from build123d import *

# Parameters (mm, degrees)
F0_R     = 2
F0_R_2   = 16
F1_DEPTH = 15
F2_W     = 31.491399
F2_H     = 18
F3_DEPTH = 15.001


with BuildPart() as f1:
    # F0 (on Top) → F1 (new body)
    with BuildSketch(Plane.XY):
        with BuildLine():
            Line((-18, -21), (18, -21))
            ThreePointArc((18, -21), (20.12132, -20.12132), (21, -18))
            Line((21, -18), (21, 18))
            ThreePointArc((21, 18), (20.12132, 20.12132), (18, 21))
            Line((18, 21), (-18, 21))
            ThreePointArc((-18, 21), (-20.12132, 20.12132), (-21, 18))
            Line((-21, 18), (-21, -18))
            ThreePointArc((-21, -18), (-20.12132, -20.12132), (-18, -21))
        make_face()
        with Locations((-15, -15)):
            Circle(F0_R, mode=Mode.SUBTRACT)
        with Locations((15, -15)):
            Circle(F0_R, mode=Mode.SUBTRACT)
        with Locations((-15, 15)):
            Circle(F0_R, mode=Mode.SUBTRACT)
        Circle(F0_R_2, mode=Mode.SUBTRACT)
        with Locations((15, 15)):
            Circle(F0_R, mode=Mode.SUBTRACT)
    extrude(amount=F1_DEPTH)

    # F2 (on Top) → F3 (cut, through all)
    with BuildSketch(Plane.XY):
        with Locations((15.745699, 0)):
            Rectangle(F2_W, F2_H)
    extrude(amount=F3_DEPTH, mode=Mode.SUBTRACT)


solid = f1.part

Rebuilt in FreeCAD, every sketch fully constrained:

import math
import FreeCAD as App
import Part
import Sketcher
from FreeCAD import Vector

doc = App.newDocument("Part")
params = doc.addObject("Spreadsheet::Sheet", "Params")
for row, (alias, value) in enumerate([
    ("sketch1_diameter", "4 mm"),
    ("sketch1_diameter2", "32 mm"),
    ("sketch1_radius", "3.000001 mm"),
    ("sketch1_width", "36 mm"),
    ("pad1_length", "15 mm"),
    ("sketch2_height", "18 mm"),
], start=1):
    params.set(f"A{row}", alias)
    params.set(f"B{row}", "=" + value)
    params.setAlias(f"B{row}", alias)

body = doc.addObject("PartDesign::Body", "Body")

sketch1 = body.newObject("Sketcher::SketchObject", "Sketch")
sketch1.AttachmentSupport = (doc.getObject("XY_Plane"), [""])
sketch1.MapMode = "FlatFace"
sketch1.addGeometry(Part.LineSegment(Vector(-18, -21, 0), Vector(18, -21, 0)), False)
sketch1.addGeometry(Part.ArcOfCircle(Part.Circle(Vector(17.999999, -17.999999, 0), Vector(0, 0, 1), 3.000001), math.radians(-89.999978), math.radians(-0.000022)), False)
sketch1.addGeometry(Part.LineSegment(Vector(21, -18, 0), Vector(21, 18, 0)), False)
sketch1.addGeometry(Part.ArcOfCircle(Part.Circle(Vector(17.999999, 17.999999, 0), Vector(0, 0, 1), 3.000001), math.radians(0.000022), math.radians(89.999978)), False)
sketch1.addGeometry(Part.LineSegment(Vector(18, 21, 0), Vector(-18, 21, 0)), False)
sketch1.addGeometry(Part.ArcOfCircle(Part.Circle(Vector(-17.999999, 17.999999, 0), Vector(0, 0, 1), 3.000001), math.radians(90.000022), math.radians(179.999978)), False)
sketch1.addGeometry(Part.LineSegment(Vector(-21, 18, 0), Vector(-21, -18, 0)), False)
sketch1.addGeometry(Part.ArcOfCircle(Part.Circle(Vector(-17.999999, -17.999999, 0), Vector(0, 0, 1), 3.000001), math.radians(-179.999978), math.radians(-90.000022)), False)
sketch1.addGeometry(Part.Circle(Vector(-15, -15, 0), Vector(0, 0, 1), 2), False)
sketch1.addGeometry(Part.Circle(Vector(15, -15, 0), Vector(0, 0, 1), 2), False)
sketch1.addGeometry(Part.Circle(Vector(-15, 15, 0), Vector(0, 0, 1), 2), False)
sketch1.addGeometry(Part.Circle(Vector(0, 0, 0), Vector(0, 0, 1), 16), False)
sketch1.addGeometry(Part.Circle(Vector(15, 15, 0), Vector(0, 0, 1), 2), False)
sketch1.addConstraint(Sketcher.Constraint("Tangent", 0, 2, 1, 1))
sketch1.addConstraint(Sketcher.Constraint("Tangent", 1, 2, 2, 1))
sketch1.addConstraint(Sketcher.Constraint("Tangent", 2, 2, 3, 1))
sketch1.addConstraint(Sketcher.Constraint("Tangent", 3, 2, 4, 1))
sketch1.addConstraint(Sketcher.Constraint("Tangent", 4, 2, 5, 1))
sketch1.addConstraint(Sketcher.Constraint("Tangent", 5, 2, 6, 1))
sketch1.addConstraint(Sketcher.Constraint("Tangent", 6, 2, 7, 1))
sketch1.addConstraint(Sketcher.Constraint("Tangent", 7, 2, 0, 1))
sketch1.addConstraint(Sketcher.Constraint("Horizontal", 0))
sketch1.addConstraint(Sketcher.Constraint("Vertical", 2))
sketch1.addConstraint(Sketcher.Constraint("Horizontal", 4))
sketch1.addConstraint(Sketcher.Constraint("Vertical", 6))
sketch1.addConstraint(Sketcher.Constraint("Coincident", 11, 3, -1, 1))
sketch1.addConstraint(Sketcher.Constraint("Equal", 1, 3))
sketch1.addConstraint(Sketcher.Constraint("Equal", 3, 5))
sketch1.addConstraint(Sketcher.Constraint("Equal", 5, 7))
sketch1.addConstraint(Sketcher.Constraint("Equal", 8, 9))
sketch1.addConstraint(Sketcher.Constraint("Equal", 9, 10))
sketch1.addConstraint(Sketcher.Constraint("Equal", 10, 12))
sketch1.addConstraint(Sketcher.Constraint("Symmetric", 1, 3, 5, 3, -1, 1))
sketch1.addConstraint(Sketcher.Constraint("Symmetric", 9, 3, 10, 3, -1, 1))
sketch1.addConstraint(Sketcher.Constraint("Symmetric", 8, 3, 12, 3, -1, 1))
sketch1.addConstraint(Sketcher.Constraint("Symmetric", 8, 3, 9, 3, -2))
sketch1.addConstraint(Sketcher.Constraint("Equal", 4, 2))
sketch1.addConstraint(Sketcher.Constraint("Diameter", 8, 4.0))
sketch1.addConstraint(Sketcher.Constraint("Diameter", 11, 32.0))
sketch1.addConstraint(Sketcher.Constraint("Radius", 1, 3.000001))
sketch1.addConstraint(Sketcher.Constraint("DistanceX", 0, 1, 0, 2, 36.0))
sketch1.addConstraint(Sketcher.Constraint("DistanceX", 8, 3, -1, 1, 15.0))
sketch1.addConstraint(Sketcher.Constraint("DistanceY", 8, 3, -1, 1, 15.0))
sketch1.setExpression("Constraints[24]", "Params.sketch1_diameter")
sketch1.setExpression("Constraints[25]", "Params.sketch1_diameter2")
sketch1.setExpression("Constraints[26]", "Params.sketch1_radius")
sketch1.setExpression("Constraints[27]", "Params.sketch1_width")
pad1 = body.newObject("PartDesign::Pad", "Pad")
pad1.Profile = sketch1
pad1.setExpression("Length", "Params.pad1_length")

sketch2 = body.newObject("Sketcher::SketchObject", "Sketch001")
sketch2.AttachmentSupport = (doc.getObject("XY_Plane"), [""])
sketch2.MapMode = "FlatFace"
sketch2.addGeometry(Part.LineSegment(Vector(0, 9, 0), Vector(0, -9, 0)), False)
sketch2.addGeometry(Part.LineSegment(Vector(0, -9, 0), Vector(31.491398, -9, 0)), False)
sketch2.addGeometry(Part.LineSegment(Vector(31.491398, -9, 0), Vector(31.491398, 9, 0)), False)
sketch2.addGeometry(Part.LineSegment(Vector(31.491398, 9, 0), Vector(0, 9, 0)), False)
sketch2.addConstraint(Sketcher.Constraint("Coincident", 0, 2, 1, 1))
sketch2.addConstraint(Sketcher.Constraint("Coincident", 1, 2, 2, 1))
sketch2.addConstraint(Sketcher.Constraint("Coincident", 2, 2, 3, 1))
sketch2.addConstraint(Sketcher.Constraint("Coincident", 3, 2, 0, 1))
sketch2.addConstraint(Sketcher.Constraint("Vertical", 0))
sketch2.addConstraint(Sketcher.Constraint("Horizontal", 1))
sketch2.addConstraint(Sketcher.Constraint("Vertical", 2))
sketch2.addConstraint(Sketcher.Constraint("Horizontal", 3))
sketch2.addConstraint(Sketcher.Constraint("Symmetric", 0, 2, 3, 2, -1, 1))
sketch2.addConstraint(Sketcher.Constraint("DistanceY", 0, 2, 0, 1, 18.0))
sketch2.addConstraint(Sketcher.Constraint("DistanceX", 1, 1, 1, 2, 31.491399))
sketch2.setExpression("Constraints[9]", "Params.sketch2_height")
pocket1 = body.newObject("PartDesign::Pocket", "Pocket")
pocket1.Profile = sketch2
pocket1.Type = "ThroughAll"
pocket1.Reversed = True

doc.recompute()
